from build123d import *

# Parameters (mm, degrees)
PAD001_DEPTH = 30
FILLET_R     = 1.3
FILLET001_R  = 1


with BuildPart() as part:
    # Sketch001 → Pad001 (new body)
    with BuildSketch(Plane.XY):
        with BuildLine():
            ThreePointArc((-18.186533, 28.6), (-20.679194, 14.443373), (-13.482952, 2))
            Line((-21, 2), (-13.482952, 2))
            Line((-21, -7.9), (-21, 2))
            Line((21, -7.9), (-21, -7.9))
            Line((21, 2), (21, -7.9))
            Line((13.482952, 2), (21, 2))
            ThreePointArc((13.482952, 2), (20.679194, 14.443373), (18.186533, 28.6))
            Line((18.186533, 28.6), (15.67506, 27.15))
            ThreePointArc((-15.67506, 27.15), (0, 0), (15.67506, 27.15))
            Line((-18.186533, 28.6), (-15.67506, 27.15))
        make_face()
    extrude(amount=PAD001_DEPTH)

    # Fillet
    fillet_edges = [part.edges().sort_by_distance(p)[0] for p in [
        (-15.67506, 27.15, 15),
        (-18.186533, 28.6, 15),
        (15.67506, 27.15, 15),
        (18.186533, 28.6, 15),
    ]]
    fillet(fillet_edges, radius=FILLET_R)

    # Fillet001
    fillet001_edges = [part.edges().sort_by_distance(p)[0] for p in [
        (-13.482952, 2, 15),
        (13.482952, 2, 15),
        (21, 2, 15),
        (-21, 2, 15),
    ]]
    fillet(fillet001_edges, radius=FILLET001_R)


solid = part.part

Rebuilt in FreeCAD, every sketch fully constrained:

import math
import FreeCAD as App
import Part
import Sketcher
Q = App.Units.Quantity


def edges_at(feature, points):
    """Names of the edges that pass closest to the given points."""
    edges = feature.Shape.Edges
    near = lambda p: min(range(len(edges)), key=lambda i: edges[i].distToShape(Part.Vertex(*p))[0])
    return sorted({f"Edge{near(p) + 1}" for p in points})

doc = App.newDocument("Part")
body = doc.addObject("PartDesign::Body", "Body")

# Sketch on XY plane
sketch1 = body.newObject("Sketcher::SketchObject", "Sketch")
sketch1.AttachmentSupport = (doc.getObject("XY_Plane"), [""])
sketch1.MapMode = "FlatFace"
sketch1.addGeometry(Part.ArcOfCircle(Part.Circle(App.Vector(0, 18.1, 0), App.Vector(0, 0, 1), 21), math.radians(150), math.radians(230)), False)
sketch1.addGeometry(Part.LineSegment(App.Vector(-13.5, 2, 0), App.Vector(-21, 2, 0)), False)
sketch1.addGeometry(Part.LineSegment(App.Vector(-21, 2, 0), App.Vector(-21, -7.9, 0)), False)
sketch1.addGeometry(Part.LineSegment(App.Vector(-21, -7.9, 0), App.Vector(21, -7.9, 0)), False)
sketch1.addGeometry(Part.LineSegment(App.Vector(21, -7.9, 0), App.Vector(21, 2, 0)), False)
sketch1.addGeometry(Part.LineSegment(App.Vector(21, 2, 0), App.Vector(13.5, 2, 0)), False)
sketch1.addGeometry(Part.ArcOfCircle(Part.Circle(App.Vector(0, 18.1, 0), App.Vector(0, 0, 1), 21), math.radians(-50), math.radians(30)), False)
sketch1.addGeometry(Part.LineSegment(App.Vector(18.2, 28.6, 0), App.Vector(15.7, 27.1, 0)), False)
sketch1.addGeometry(Part.ArcOfCircle(Part.Circle(App.Vector(0, 18.1, 0), App.Vector(0, 0, 1), 18.1), math.radians(150), math.radians(390)), False)
sketch1.addGeometry(Part.LineSegment(App.Vector(-15.7, 27.1, 0), App.Vector(-18.2, 28.6, 0)), False)
sketch1.addConstraint(Sketcher.Constraint("Coincident", 0, 2, 1, 1))
sketch1.addConstraint(Sketcher.Constraint("Coincident", 1, 2, 2, 1))
sketch1.addConstraint(Sketcher.Constraint("Coincident", 2, 2, 3, 1))
sketch1.addConstraint(Sketcher.Constraint("Coincident", 3, 2, 4, 1))
sketch1.addConstraint(Sketcher.Constraint("Coincident", 4, 2, 5, 1))
sketch1.addConstraint(Sketcher.Constraint("Coincident", 5, 2, 6, 1))
sketch1.addConstraint(Sketcher.Constraint("Coincident", 6, 2, 7, 1))
sketch1.addConstraint(Sketcher.Constraint("Coincident", 7, 2, 8, 2))
sketch1.addConstraint(Sketcher.Constraint("Coincident", 8, 1, 9, 1))
sketch1.addConstraint(Sketcher.Constraint("Coincident", 9, 2, 0, 1))
sketch1.addConstraint(Sketcher.Constraint("Horizontal", 1))
sketch1.addConstraint(Sketcher.Constraint("Vertical", 2))
sketch1.addConstraint(Sketcher.Constraint("Horizontal", 3))
sketch1.addConstraint(Sketcher.Constraint("Vertical", 4))
sketch1.addConstraint(Sketcher.Constraint("Horizontal", 5))
sketch1.addConstraint(Sketcher.Constraint("Coincident", 6, 3, 0, 3))
sketch1.addConstraint(Sketcher.Constraint("Coincident", 8, 3, 0, 3))
sketch1.addConstraint(Sketcher.Constraint("Equal", 0, 6))
sketch1.addConstraint(Sketcher.Constraint("Symmetric", 1, 2, 4, 2, -2))
sketch1.addConstraint(Sketcher.Constraint("Symmetric", 7, 2, 8, 1, -2))
sketch1.addConstraint(Sketcher.Constraint("Horizontal", 6, 2, 9, 2))
sketch1.addConstraint(Sketcher.Constraint("Radius", 0, Q("21 mm")))
sketch1.addConstraint(Sketcher.Constraint("Radius", 8, Q("18.1 mm")))
sketch1.addConstraint(Sketcher.Constraint("DistanceX", 3, 1, 3, 2, Q("42 mm")))
sketch1.addConstraint(Sketcher.Constraint("Angle", 7, Q("-149.999993 deg")))
sketch1.addConstraint(Sketcher.Constraint("DistanceY", 2, 2, 2, 1, Q("9.9 mm")))
sketch1.addConstraint(Sketcher.Constraint("DistanceY", -1, 1, 0, 2, Q("2 mm")))
sketch1.addConstraint(Sketcher.Constraint("DistanceY", 2, 2, 6, 3, Q("26 mm")))
sketch1.addConstraint(Sketcher.Constraint("DistanceY", -1, 1, 6, 2, Q("28.6 mm")))
pad1 = body.newObject("PartDesign::Pad", "Pad")
pad1.Profile = sketch1
pad1.Length = 30
doc.recompute()

fillet = body.newObject("PartDesign::Fillet", "Fillet")
fillet.Base = (pad1, edges_at(pad1, [
    (-15.675, 27.15, 15),
    (-18.187, 28.6, 15),
    (15.675, 27.15, 15),
    (18.187, 28.6, 15),
]))
fillet.Radius = 1.3
doc.recompute()

fillet2 = body.newObject("PartDesign::Fillet", "Fillet001")
fillet2.Base = (fillet, edges_at(fillet, [
    (-13.483, 2, 15),
    (13.483, 2, 15),
    (21, 2, 15),
    (-21, 2, 15),
]))
fillet2.Radius = 1

doc.recompute()
